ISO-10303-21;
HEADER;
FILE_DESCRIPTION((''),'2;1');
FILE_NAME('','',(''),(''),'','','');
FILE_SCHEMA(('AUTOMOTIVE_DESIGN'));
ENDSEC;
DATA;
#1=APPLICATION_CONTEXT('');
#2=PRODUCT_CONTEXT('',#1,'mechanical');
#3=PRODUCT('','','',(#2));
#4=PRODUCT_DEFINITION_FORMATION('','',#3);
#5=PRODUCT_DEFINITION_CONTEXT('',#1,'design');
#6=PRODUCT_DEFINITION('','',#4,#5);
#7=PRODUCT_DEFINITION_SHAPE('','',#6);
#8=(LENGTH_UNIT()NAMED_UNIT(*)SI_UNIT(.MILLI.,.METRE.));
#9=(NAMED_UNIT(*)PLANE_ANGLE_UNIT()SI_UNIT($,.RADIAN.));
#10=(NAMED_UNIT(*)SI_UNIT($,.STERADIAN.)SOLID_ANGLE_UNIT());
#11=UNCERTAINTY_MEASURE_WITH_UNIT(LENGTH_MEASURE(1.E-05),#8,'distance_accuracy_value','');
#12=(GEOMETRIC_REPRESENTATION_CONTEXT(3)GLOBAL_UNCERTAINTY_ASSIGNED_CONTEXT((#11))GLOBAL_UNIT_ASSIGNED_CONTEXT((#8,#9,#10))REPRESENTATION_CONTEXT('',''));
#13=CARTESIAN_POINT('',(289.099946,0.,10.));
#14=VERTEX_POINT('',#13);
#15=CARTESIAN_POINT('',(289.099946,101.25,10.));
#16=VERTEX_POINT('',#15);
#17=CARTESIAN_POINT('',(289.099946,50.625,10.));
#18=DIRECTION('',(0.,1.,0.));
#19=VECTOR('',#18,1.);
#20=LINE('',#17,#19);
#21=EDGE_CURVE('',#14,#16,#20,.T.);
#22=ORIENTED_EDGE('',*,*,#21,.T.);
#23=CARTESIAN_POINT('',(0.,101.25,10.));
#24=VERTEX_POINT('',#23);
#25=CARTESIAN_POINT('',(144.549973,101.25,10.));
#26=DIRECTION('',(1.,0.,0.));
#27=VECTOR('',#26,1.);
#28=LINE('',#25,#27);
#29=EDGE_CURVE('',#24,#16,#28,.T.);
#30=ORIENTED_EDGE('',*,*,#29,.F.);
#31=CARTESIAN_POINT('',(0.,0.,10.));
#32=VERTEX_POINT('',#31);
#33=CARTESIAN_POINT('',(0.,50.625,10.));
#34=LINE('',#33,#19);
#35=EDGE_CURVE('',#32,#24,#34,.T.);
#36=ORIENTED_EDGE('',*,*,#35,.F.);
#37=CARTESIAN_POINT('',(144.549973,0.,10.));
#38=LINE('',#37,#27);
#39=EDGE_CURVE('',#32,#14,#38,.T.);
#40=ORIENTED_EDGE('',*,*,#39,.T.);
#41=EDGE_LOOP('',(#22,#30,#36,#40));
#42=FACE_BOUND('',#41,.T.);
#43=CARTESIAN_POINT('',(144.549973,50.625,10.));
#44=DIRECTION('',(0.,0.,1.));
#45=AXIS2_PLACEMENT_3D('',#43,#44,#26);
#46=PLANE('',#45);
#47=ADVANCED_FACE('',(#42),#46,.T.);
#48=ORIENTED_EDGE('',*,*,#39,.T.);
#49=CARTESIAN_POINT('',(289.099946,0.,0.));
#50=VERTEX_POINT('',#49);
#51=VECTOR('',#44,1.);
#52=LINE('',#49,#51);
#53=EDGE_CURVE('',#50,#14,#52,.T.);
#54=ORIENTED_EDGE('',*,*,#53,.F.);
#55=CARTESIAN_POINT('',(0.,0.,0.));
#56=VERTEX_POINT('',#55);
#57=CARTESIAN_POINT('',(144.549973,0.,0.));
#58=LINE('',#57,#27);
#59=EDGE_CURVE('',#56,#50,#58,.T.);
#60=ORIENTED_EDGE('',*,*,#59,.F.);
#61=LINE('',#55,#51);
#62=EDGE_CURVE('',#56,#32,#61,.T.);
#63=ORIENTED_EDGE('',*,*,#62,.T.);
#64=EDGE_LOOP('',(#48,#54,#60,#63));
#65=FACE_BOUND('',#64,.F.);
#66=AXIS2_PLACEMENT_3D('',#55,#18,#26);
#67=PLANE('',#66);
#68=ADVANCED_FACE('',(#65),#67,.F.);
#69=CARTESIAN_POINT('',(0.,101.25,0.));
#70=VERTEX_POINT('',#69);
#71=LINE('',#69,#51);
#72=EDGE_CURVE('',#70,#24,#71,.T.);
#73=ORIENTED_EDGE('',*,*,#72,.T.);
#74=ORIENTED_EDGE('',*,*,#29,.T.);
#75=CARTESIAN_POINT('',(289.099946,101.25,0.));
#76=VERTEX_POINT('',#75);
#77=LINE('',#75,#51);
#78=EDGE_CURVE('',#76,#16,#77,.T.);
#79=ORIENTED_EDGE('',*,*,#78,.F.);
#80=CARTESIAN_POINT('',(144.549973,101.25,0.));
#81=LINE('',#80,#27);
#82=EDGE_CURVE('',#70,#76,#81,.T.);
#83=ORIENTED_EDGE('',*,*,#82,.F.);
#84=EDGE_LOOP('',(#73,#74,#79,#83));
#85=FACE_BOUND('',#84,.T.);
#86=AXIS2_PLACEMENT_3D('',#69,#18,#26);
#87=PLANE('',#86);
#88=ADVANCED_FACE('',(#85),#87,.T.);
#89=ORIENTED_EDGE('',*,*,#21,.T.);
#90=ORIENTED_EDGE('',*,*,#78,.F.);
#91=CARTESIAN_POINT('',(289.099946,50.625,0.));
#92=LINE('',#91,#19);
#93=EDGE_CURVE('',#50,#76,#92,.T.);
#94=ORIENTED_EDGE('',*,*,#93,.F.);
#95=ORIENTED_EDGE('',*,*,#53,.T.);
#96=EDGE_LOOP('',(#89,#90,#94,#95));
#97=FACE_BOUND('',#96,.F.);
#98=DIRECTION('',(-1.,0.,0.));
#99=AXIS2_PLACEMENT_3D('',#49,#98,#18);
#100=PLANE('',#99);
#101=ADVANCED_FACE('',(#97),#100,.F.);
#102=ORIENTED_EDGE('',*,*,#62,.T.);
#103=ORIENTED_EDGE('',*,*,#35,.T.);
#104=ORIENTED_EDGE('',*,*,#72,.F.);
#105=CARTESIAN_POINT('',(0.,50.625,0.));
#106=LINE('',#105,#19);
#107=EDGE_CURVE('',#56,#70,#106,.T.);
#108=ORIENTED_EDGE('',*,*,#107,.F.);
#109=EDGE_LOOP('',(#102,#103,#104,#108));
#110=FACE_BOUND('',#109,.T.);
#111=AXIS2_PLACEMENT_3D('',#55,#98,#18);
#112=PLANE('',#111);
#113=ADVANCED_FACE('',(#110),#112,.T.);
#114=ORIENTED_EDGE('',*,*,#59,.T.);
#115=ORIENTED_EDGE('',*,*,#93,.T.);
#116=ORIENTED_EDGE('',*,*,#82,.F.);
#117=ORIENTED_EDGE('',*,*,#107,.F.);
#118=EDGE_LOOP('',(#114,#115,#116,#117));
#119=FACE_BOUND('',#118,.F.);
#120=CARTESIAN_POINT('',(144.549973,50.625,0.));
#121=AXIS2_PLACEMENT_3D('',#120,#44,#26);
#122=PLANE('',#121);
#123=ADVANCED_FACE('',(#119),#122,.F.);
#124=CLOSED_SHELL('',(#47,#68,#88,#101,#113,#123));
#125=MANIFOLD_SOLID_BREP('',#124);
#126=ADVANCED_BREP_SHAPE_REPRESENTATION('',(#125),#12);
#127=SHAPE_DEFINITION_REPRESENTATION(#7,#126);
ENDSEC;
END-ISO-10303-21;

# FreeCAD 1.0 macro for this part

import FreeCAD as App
import Part
import Sketcher
from FreeCAD import Vector

doc = App.newDocument("Part")
body = doc.addObject("PartDesign::Body", "Body")

sketch1 = body.newObject("Sketcher::SketchObject", "Sketch")
sketch1.AttachmentSupport = (doc.getObject("XY_Plane"), [""])
sketch1.MapMode = "FlatFace"
sketch1.addGeometry(Part.LineSegment(Vector(-145, 51, 0), Vector(-145, -51, 0)), False)
sketch1.addGeometry(Part.LineSegment(Vector(-145, -51, 0), Vector(145, -51, 0)), False)
sketch1.addGeometry(Part.LineSegment(Vector(145, -51, 0), Vector(145, 51, 0)), False)
sketch1.addGeometry(Part.LineSegment(Vector(145, 51, 0), Vector(-145, 51, 0)), False)
sketch1.addConstraint(Sketcher.Constraint("Coincident", 0, 2, 1, 1))
sketch1.addConstraint(Sketcher.Constraint("Coincident", 1, 2, 2, 1))
sketch1.addConstraint(Sketcher.Constraint("Coincident", 2, 2, 3, 1))
sketch1.addConstraint(Sketcher.Constraint("Coincident", 3, 2, 0, 1))
sketch1.addConstraint(Sketcher.Constraint("Vertical", 0))
sketch1.addConstraint(Sketcher.Constraint("Horizontal", 1))
sketch1.addConstraint(Sketcher.Constraint("Vertical", 2))
sketch1.addConstraint(Sketcher.Constraint("Horizontal", 3))
sketch1.addConstraint(Sketcher.Constraint("Symmetric", 0, 2, 2, 2, -1, 1))
sketch1.addConstraint(Sketcher.Constraint("DistanceY", 0, 2, 0, 1, 101.25))
sketch1.addConstraint(Sketcher.Constraint("DistanceX", 1, 1, 1, 2, 289.099946))
pad1 = body.newObject("PartDesign::Pad", "Pad")
pad1.Profile = sketch1
pad1.Length = 10
body2 = doc.addObject("PartDesign::Body", "Body001")
doc.recompute()

body.Placement = App.Placement(Vector(144.549973, 50.625, 0), App.Rotation(Vector(0, 0, 1), 0))
boolean = body2.newObject("PartDesign::Boolean", "Boolean")
boolean.Type = "Fuse"
boolean.addObjects([body])

doc.recompute()
